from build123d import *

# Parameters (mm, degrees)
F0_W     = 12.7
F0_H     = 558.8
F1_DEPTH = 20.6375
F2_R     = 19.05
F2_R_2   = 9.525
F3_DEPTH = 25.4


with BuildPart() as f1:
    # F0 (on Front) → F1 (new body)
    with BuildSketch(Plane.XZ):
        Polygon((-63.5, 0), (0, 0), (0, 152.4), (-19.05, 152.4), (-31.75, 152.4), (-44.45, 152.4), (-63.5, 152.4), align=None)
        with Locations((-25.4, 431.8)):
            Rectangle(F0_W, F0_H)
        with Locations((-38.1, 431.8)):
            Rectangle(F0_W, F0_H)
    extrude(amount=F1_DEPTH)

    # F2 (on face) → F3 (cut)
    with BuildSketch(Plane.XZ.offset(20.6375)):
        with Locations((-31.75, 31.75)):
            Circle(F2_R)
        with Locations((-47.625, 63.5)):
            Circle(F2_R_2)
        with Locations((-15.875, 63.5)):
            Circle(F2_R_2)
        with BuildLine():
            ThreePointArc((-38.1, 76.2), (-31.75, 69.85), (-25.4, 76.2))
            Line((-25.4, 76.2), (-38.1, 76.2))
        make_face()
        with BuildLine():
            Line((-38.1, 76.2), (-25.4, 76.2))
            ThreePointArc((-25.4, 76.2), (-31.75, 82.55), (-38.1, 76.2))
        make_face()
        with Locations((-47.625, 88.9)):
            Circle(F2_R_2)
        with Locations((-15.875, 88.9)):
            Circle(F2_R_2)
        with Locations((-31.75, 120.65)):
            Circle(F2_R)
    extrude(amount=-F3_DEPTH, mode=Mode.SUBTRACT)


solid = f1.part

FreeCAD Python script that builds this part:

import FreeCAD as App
import Part
import Sketcher
from FreeCAD import Vector
Q = App.Units.Quantity

doc = App.newDocument("Part")
body = doc.addObject("PartDesign::Body", "Body")

sketch1 = doc.addObject("Sketcher::SketchObject", "Sketch")
body.addObject(sketch1)
sketch1.AttachmentSupport = (doc.XZ_Plane, [""])
sketch1.MapMode = "FlatFace"
sketch1.addGeometry([
    Part.LineSegment(Vector(-63.5, 0, 0), Vector(0, 0, 0)),
    Part.LineSegment(Vector(0, 0, 0), Vector(0, 152.4, 0)),
    Part.LineSegment(Vector(0, 152.4, 0), Vector(-19.05, 152.4, 0)),
    Part.LineSegment(Vector(-19.05, 152.4, 0), Vector(-19.05, 711.2, 0)),
    Part.LineSegment(Vector(-19.05, 711.2, 0), Vector(-44.45, 711.2, 0)),
    Part.LineSegment(Vector(-44.45, 711.2, 0), Vector(-44.45, 152.4, 0)),
    Part.LineSegment(Vector(-44.45, 152.4, 0), Vector(-63.5, 152.4, 0)),
    Part.LineSegment(Vector(-63.5, 152.4, 0), Vector(-63.5, 0, 0)),
], False)
sketch1.addConstraint([
    Sketcher.Constraint("Coincident", 0, 2, 1, 1),
    Sketcher.Constraint("Coincident", 1, 2, 2, 1),
    Sketcher.Constraint("Coincident", 2, 2, 3, 1),
    Sketcher.Constraint("Coincident", 3, 2, 4, 1),
    Sketcher.Constraint("Coincident", 4, 2, 5, 1),
    Sketcher.Constraint("Coincident", 5, 2, 6, 1),
    Sketcher.Constraint("Coincident", 6, 2, 7, 1),
    Sketcher.Constraint("Coincident", 7, 2, 0, 1),
    Sketcher.Constraint("Horizontal", 0),
    Sketcher.Constraint("Vertical", 1),
    Sketcher.Constraint("Horizontal", 2),
    Sketcher.Constraint("Vertical", 3),
    Sketcher.Constraint("Horizontal", 4),
    Sketcher.Constraint("Vertical", 5),
    Sketcher.Constraint("Horizontal", 6),
    Sketcher.Constraint("Vertical", 7),
    Sketcher.Constraint("Coincident", 0, 2, -1, 1),
    Sketcher.Constraint("Horizontal", 2, 2, 5, 2),
    Sketcher.Constraint("Equal", 2, 6),
    Sketcher.Constraint("DistanceX", 4, 2, 4, 1, Q("1 in")),
    Sketcher.Constraint("DistanceY", 1, 1, 1, 2, Q("6 in")),
    Sketcher.Constraint("DistanceY", 3, 1, 3, 2, Q("22 in")),
    Sketcher.Constraint("DistanceX", 0, 1, 0, 2, Q("2.5 in")),
])
pad1 = doc.addObject("PartDesign::Pad", "Pad")
body.addObject(pad1)
pad1.Profile = sketch1
pad1.Length = Q("0.8125 in")

sketch2 = doc.addObject("Sketcher::SketchObject", "Sketch001")
body.addObject(sketch2)
sketch2.AttachmentSupport = (doc.XZ_Plane, [""])
sketch2.MapMode = "FlatFace"
sketch2.AttachmentOffset = App.Placement(Vector(0, 0, 0.8125 * 25.4), App.Rotation())
sketch2.addGeometry([
    Part.Circle(Vector(-31.75, 31.75, 0), Vector(0, 0, 1), 19.05),
    Part.Circle(Vector(-47.625, 63.5, 0), Vector(0, 0, 1), 9.525),
    Part.Circle(Vector(-15.875, 63.5, 0), Vector(0, 0, 1), 9.525),
    Part.Circle(Vector(-31.75, 76.2, 0), Vector(0, 0, 1), 6.35),
    Part.Circle(Vector(-47.625, 88.9, 0), Vector(0, 0, 1), 9.525),
    Part.Circle(Vector(-15.875, 88.9, 0), Vector(0, 0, 1), 9.525),
    Part.Circle(Vector(-31.75, 120.65, 0), Vector(0, 0, 1), 19.05),
], False)
sketch2.addConstraint([
    Sketcher.Constraint("Equal", 1, 2),
    Sketcher.Constraint("Equal", 2, 4),
    Sketcher.Constraint("Equal", 4, 5),
    Sketcher.Constraint("Equal", 0, 6),
    Sketcher.Constraint("Horizontal", 1, 3, 2, 3),
    Sketcher.Constraint("Horizontal", 4, 3, 5, 3),
    Sketcher.Constraint("Vertical", 0, 3, 3, 3),
    Sketcher.Constraint("Vertical", 1, 3, 4, 3),
    Sketcher.Constraint("Vertical", 2, 3, 5, 3),
    Sketcher.Constraint("Vertical", 3, 3, 6, 3),
    Sketcher.Constraint("Diameter", 0, Q("1.5 in")),
    Sketcher.Constraint("Diameter", 3, Q("0.5 in")),
    Sketcher.Constraint("Diameter", 1, Q("0.75 in")),
    Sketcher.Constraint("DistanceY", -1, 1, 3, 3, Q("3 in")),
    Sketcher.Constraint("DistanceY", 1, 3, 4, 3, Q("1 in")),
    Sketcher.Constraint("DistanceY", -1, 1, 1, 3, Q("2.5 in")),
    Sketcher.Constraint("DistanceX", 0, 3, -1, 1, Q("1.25 in")),
    Sketcher.Constraint("DistanceY", -1, 1, 0, 3, Q("1.25 in")),
    Sketcher.Constraint("DistanceY", -1, 1, 6, 3, Q("4.75 in")),
    Sketcher.Constraint("DistanceX", 1, 3, 2, 3, Q("1.25 in")),
    Sketcher.Constraint("DistanceX", 1, 3, -1, 1, Q("1.875 in")),
])
pocket1 = doc.addObject("PartDesign::Pocket", "Pocket")
body.addObject(pocket1)
pocket1.Profile = sketch2
pocket1.Length = Q("1 in")

doc.recompute()
